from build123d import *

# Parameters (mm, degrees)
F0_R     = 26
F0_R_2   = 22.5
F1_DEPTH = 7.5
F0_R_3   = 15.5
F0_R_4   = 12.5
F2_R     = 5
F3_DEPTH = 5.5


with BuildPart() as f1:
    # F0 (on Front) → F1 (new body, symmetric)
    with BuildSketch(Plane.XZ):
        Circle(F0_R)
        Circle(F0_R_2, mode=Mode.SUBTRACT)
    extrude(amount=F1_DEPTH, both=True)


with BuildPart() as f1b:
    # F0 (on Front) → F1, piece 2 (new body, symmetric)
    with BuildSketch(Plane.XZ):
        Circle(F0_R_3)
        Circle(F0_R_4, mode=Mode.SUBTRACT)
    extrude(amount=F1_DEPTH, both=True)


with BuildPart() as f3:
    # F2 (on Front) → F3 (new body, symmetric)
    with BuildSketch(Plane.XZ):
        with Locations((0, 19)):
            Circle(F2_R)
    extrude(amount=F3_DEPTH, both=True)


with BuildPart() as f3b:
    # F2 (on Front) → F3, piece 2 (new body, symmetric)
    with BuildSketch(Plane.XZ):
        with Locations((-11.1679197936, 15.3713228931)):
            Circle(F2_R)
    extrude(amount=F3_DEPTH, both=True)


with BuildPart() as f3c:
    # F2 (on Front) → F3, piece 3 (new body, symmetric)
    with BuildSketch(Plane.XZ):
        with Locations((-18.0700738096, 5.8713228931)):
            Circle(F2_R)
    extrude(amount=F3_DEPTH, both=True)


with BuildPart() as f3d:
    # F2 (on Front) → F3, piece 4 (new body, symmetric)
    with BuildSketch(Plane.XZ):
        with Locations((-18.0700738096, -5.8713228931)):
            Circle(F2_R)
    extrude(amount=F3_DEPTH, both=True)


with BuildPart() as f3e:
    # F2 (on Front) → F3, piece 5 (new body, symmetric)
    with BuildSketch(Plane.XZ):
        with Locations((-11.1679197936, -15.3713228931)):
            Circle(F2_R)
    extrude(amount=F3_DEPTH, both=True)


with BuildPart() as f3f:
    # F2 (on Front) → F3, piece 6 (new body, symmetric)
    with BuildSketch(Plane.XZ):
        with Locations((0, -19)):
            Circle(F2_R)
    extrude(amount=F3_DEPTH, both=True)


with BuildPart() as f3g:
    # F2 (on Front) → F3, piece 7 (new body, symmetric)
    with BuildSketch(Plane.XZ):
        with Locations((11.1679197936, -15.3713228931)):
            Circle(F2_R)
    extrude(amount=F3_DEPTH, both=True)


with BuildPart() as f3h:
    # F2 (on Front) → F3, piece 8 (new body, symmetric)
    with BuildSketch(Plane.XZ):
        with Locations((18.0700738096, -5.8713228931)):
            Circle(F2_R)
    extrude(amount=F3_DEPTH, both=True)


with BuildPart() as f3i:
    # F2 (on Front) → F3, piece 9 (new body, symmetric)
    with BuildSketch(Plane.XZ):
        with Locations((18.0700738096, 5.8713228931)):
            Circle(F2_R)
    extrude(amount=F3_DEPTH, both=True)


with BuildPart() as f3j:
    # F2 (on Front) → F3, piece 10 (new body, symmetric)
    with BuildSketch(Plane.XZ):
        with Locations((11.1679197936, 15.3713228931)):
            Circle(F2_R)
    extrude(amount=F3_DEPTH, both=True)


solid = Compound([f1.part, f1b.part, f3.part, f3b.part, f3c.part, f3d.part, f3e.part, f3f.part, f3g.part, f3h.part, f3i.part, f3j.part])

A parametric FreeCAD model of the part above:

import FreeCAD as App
import Part
import Sketcher

doc = App.newDocument("Part")
params = doc.addObject("Spreadsheet::Sheet", "Params")
for row, (alias, value) in enumerate([
    ("sketch1_diameter", "52 mm"),
    ("sketch1_diameter2", "45 mm"),
    ("pad1_length", "15 mm"),
    ("sketch2_diameter", "31 mm"),
    ("sketch2_diameter2", "25 mm"),
    ("pad2_length", "15 mm"),
    ("sketch3_diameter", "10 mm"),
    ("pad3_length", "11 mm"),
    ("sketch4_diameter", "10 mm"),
    ("pad4_length", "11 mm"),
    ("sketch5_diameter", "10 mm"),
    ("pad5_length", "11 mm"),
    ("sketch6_diameter", "10 mm"),
    ("pad6_length", "11 mm"),
    ("sketch7_diameter", "10 mm"),
    ("pad7_length", "11 mm"),
    ("sketch8_diameter", "10 mm"),
    ("pad8_length", "11 mm"),
    ("sketch9_diameter", "10 mm"),
    ("pad9_length", "11 mm"),
    ("sketch10_diameter", "10 mm"),
    ("pad10_length", "11 mm"),
    ("sketch11_diameter", "10 mm"),
    ("pad11_length", "11 mm"),
    ("sketch12_diameter", "10 mm"),
    ("pad12_length", "11 mm"),
], start=1):
    params.set(f"A{row}", alias)
    params.set(f"B{row}", "=" + value)
    params.setAlias(f"B{row}", alias)

body = doc.addObject("PartDesign::Body", "Body")

# Sketch on XZ plane
sketch1 = body.newObject("Sketcher::SketchObject", "Sketch")
sketch1.AttachmentSupport = (doc.getObject("XZ_Plane"), [""])
sketch1.MapMode = "FlatFace"
sketch1.addGeometry([
    Part.Circle(App.Vector(0, 0, 0), App.Vector(0, 0, 1), 26),
    Part.Circle(App.Vector(0, 0, 0), App.Vector(0, 0, 1), 22),
], False)
sketch1.addConstraint([
    Sketcher.Constraint("Coincident", 0, 3, -1, 1),
    Sketcher.Constraint("Coincident", 1, 3, -1, 1),
    Sketcher.Constraint("Diameter", 0, 52.0),
    Sketcher.Constraint("Diameter", 1, 45.0),
])
sketch1.setExpression("Constraints[2]", "Params.sketch1_diameter")
sketch1.setExpression("Constraints[3]", "Params.sketch1_diameter2")
pad1 = body.newObject("PartDesign::Pad", "Pad")
pad1.Profile = sketch1
pad1.setExpression("Length", "Params.pad1_length")
pad1.Midplane = True
body2 = doc.addObject("PartDesign::Body", "Body001")

# Sketch on XZ plane
sketch2 = body2.newObject("Sketcher::SketchObject", "Sketch001")
sketch2.AttachmentSupport = (doc.getObject("XZ_Plane001"), [""])
sketch2.MapMode = "FlatFace"
sketch2.addGeometry([
    Part.Circle(App.Vector(0, 0, 0), App.Vector(0, 0, 1), 16),
    Part.Circle(App.Vector(0, 0, 0), App.Vector(0, 0, 1), 12),
], False)
sketch2.addConstraint([
    Sketcher.Constraint("Coincident", 0, 3, -1, 1),
    Sketcher.Constraint("Coincident", 1, 3, -1, 1),
    Sketcher.Constraint("Diameter", 0, 31.0),
    Sketcher.Constraint("Diameter", 1, 25.0),
])
sketch2.setExpression("Constraints[2]", "Params.sketch2_diameter")
sketch2.setExpression("Constraints[3]", "Params.sketch2_diameter2")
pad2 = body2.newObject("PartDesign::Pad", "Pad001")
pad2.Profile = sketch2
pad2.setExpression("Length", "Params.pad2_length")
pad2.Midplane = True
body3 = doc.addObject("PartDesign::Body", "Body002")

# Sketch on XZ plane
sketch3 = body3.newObject("Sketcher::SketchObject", "Sketch002")
sketch3.AttachmentSupport = (doc.getObject("XZ_Plane002"), [""])
sketch3.MapMode = "FlatFace"
sketch3.addGeometry(Part.Circle(App.Vector(0, 19, 0), App.Vector(0, 0, 1), 5), False)
sketch3.addConstraint([
    Sketcher.Constraint("PointOnObject", 0, 3, -2),
    Sketcher.Constraint("Diameter", 0, 10.0),
    Sketcher.Constraint("DistanceY", -1, 1, 0, 3, 19.0),
])
sketch3.setExpression("Constraints[1]", "Params.sketch3_diameter")
pad3 = body3.newObject("PartDesign::Pad", "Pad002")
pad3.Profile = sketch3
pad3.setExpression("Length", "Params.pad3_length")
pad3.Midplane = True
body4 = doc.addObject("PartDesign::Body", "Body003")

# Sketch on XZ plane
sketch4 = body4.newObject("Sketcher::SketchObject", "Sketch003")
sketch4.AttachmentSupport = (doc.getObject("XZ_Plane003"), [""])
sketch4.MapMode = "FlatFace"
sketch4.addGeometry(Part.Circle(App.Vector(-11, 15, 0), App.Vector(0, 0, 1), 5), False)
sketch4.addConstraint([
    Sketcher.Constraint("Diameter", 0, 10.0),
    Sketcher.Constraint("DistanceX", 0, 3, -1, 1, 11.16792),
    Sketcher.Constraint("DistanceY", -1, 1, 0, 3, 15.371323),
])
sketch4.setExpression("Constraints[0]", "Params.sketch4_diameter")
pad4 = body4.newObject("PartDesign::Pad", "Pad003")
pad4.Profile = sketch4
pad4.setExpression("Length", "Params.pad4_length")
pad4.Midplane = True
body5 = doc.addObject("PartDesign::Body", "Body004")

# Sketch on XZ plane
sketch5 = body5.newObject("Sketcher::SketchObject", "Sketch004")
sketch5.AttachmentSupport = (doc.getObject("XZ_Plane004"), [""])
sketch5.MapMode = "FlatFace"
sketch5.addGeometry(Part.Circle(App.Vector(-18, 6, 0), App.Vector(0, 0, 1), 5), False)
sketch5.addConstraint([
    Sketcher.Constraint("Diameter", 0, 10.0),
    Sketcher.Constraint("DistanceX", 0, 3, -1, 1, 18.070074),
    Sketcher.Constraint("DistanceY", -1, 1, 0, 3, 5.871323),
])
sketch5.setExpression("Constraints[0]", "Params.sketch5_diameter")
pad5 = body5.newObject("PartDesign::Pad", "Pad004")
pad5.Profile = sketch5
pad5.setExpression("Length", "Params.pad5_length")
pad5.Midplane = True
body6 = doc.addObject("PartDesign::Body", "Body005")

# Sketch on XZ plane
sketch6 = body6.newObject("Sketcher::SketchObject", "Sketch005")
sketch6.AttachmentSupport = (doc.getObject("XZ_Plane005"), [""])
sketch6.MapMode = "FlatFace"
sketch6.addGeometry(Part.Circle(App.Vector(-18, -6, 0), App.Vector(0, 0, 1), 5), False)
sketch6.addConstraint([
    Sketcher.Constraint("Diameter", 0, 10.0),
    Sketcher.Constraint("DistanceX", 0, 3, -1, 1, 18.070074),
    Sketcher.Constraint("DistanceY", 0, 3, -1, 1, 5.871323),
])
sketch6.setExpression("Constraints[0]", "Params.sketch6_diameter")
pad6 = body6.newObject("PartDesign::Pad", "Pad005")
pad6.Profile = sketch6
pad6.setExpression("Length", "Params.pad6_length")
pad6.Midplane = True
body7 = doc.addObject("PartDesign::Body", "Body006")

# Sketch on XZ plane
sketch7 = body7.newObject("Sketcher::SketchObject", "Sketch006")
sketch7.AttachmentSupport = (doc.getObject("XZ_Plane006"), [""])
sketch7.MapMode = "FlatFace"
sketch7.addGeometry(Part.Circle(App.Vector(-11, -15, 0), App.Vector(0, 0, 1), 5), False)
sketch7.addConstraint([
    Sketcher.Constraint("Diameter", 0, 10.0),
    Sketcher.Constraint("DistanceX", 0, 3, -1, 1, 11.16792),
    Sketcher.Constraint("DistanceY", 0, 3, -1, 1, 15.371323),
])
sketch7.setExpression("Constraints[0]", "Params.sketch7_diameter")
pad7 = body7.newObject("PartDesign::Pad", "Pad006")
pad7.Profile = sketch7
pad7.setExpression("Length", "Params.pad7_length")
pad7.Midplane = True
body8 = doc.addObject("PartDesign::Body", "Body007")

# Sketch on XZ plane
sketch8 = body8.newObject("Sketcher::SketchObject", "Sketch007")
sketch8.AttachmentSupport = (doc.getObject("XZ_Plane007"), [""])
sketch8.MapMode = "FlatFace"
sketch8.addGeometry(Part.Circle(App.Vector(0, -19, 0), App.Vector(0, 0, 1), 5), False)
sketch8.addConstraint([
    Sketcher.Constraint("PointOnObject", 0, 3, -2),
    Sketcher.Constraint("Diameter", 0, 10.0),
    Sketcher.Constraint("DistanceY", 0, 3, -1, 1, 19.0),
])
sketch8.setExpression("Constraints[1]", "Params.sketch8_diameter")
pad8 = body8.newObject("PartDesign::Pad", "Pad007")
pad8.Profile = sketch8
pad8.setExpression("Length", "Params.pad8_length")
pad8.Midplane = True
body9 = doc.addObject("PartDesign::Body", "Body008")

# Sketch on XZ plane
sketch9 = body9.newObject("Sketcher::SketchObject", "Sketch008")
sketch9.AttachmentSupport = (doc.getObject("XZ_Plane008"), [""])
sketch9.MapMode = "FlatFace"
sketch9.addGeometry(Part.Circle(App.Vector(11, -15, 0), App.Vector(0, 0, 1), 5), False)
sketch9.addConstraint([
    Sketcher.Constraint("Diameter", 0, 10.0),
    Sketcher.Constraint("DistanceX", -1, 1, 0, 3, 11.16792),
    Sketcher.Constraint("DistanceY", 0, 3, -1, 1, 15.371323),
])
sketch9.setExpression("Constraints[0]", "Params.sketch9_diameter")
pad9 = body9.newObject("PartDesign::Pad", "Pad008")
pad9.Profile = sketch9
pad9.setExpression("Length", "Params.pad9_length")
pad9.Midplane = True
body10 = doc.addObject("PartDesign::Body", "Body009")

# Sketch on XZ plane
sketch10 = body10.newObject("Sketcher::SketchObject", "Sketch009")
sketch10.AttachmentSupport = (doc.getObject("XZ_Plane009"), [""])
sketch10.MapMode = "FlatFace"
sketch10.addGeometry(Part.Circle(App.Vector(18, -6, 0), App.Vector(0, 0, 1), 5), False)
sketch10.addConstraint([
    Sketcher.Constraint("Diameter", 0, 10.0),
    Sketcher.Constraint("DistanceX", -1, 1, 0, 3, 18.070074),
    Sketcher.Constraint("DistanceY", 0, 3, -1, 1, 5.871323),
])
sketch10.setExpression("Constraints[0]", "Params.sketch10_diameter")
pad10 = body10.newObject("PartDesign::Pad", "Pad009")
pad10.Profile = sketch10
pad10.setExpression("Length", "Params.pad10_length")
pad10.Midplane = True
body11 = doc.addObject("PartDesign::Body", "Body010")

# Sketch on XZ plane
sketch11 = body11.newObject("Sketcher::SketchObject", "Sketch010")
sketch11.AttachmentSupport = (doc.getObject("XZ_Plane010"), [""])
sketch11.MapMode = "FlatFace"
sketch11.addGeometry(Part.Circle(App.Vector(18, 6, 0), App.Vector(0, 0, 1), 5), False)
sketch11.addConstraint([
    Sketcher.Constraint("Diameter", 0, 10.0),
    Sketcher.Constraint("DistanceX", -1, 1, 0, 3, 18.070074),
    Sketcher.Constraint("DistanceY", -1, 1, 0, 3, 5.871323),
])
sketch11.setExpression("Constraints[0]", "Params.sketch11_diameter")
pad11 = body11.newObject("PartDesign::Pad", "Pad010")
pad11.Profile = sketch11
pad11.setExpression("Length", "Params.pad11_length")
pad11.Midplane = True
body12 = doc.addObject("PartDesign::Body", "Body011")

# Sketch on XZ plane
sketch12 = body12.newObject("Sketcher::SketchObject", "Sketch011")
sketch12.AttachmentSupport = (doc.getObject("XZ_Plane011"), [""])
sketch12.MapMode = "FlatFace"
sketch12.addGeometry(Part.Circle(App.Vector(11, 15, 0), App.Vector(0, 0, 1), 5), False)
sketch12.addConstraint([
    Sketcher.Constraint("Diameter", 0, 10.0),
    Sketcher.Constraint("DistanceX", -1, 1, 0, 3, 11.16792),
    Sketcher.Constraint("DistanceY", -1, 1, 0, 3, 15.371323),
])
sketch12.setExpression("Constraints[0]", "Params.sketch12_diameter")
pad12 = body12.newObject("PartDesign::Pad", "Pad011")
pad12.Profile = sketch12
pad12.setExpression("Length", "Params.pad12_length")
pad12.Midplane = True

doc.recompute()
